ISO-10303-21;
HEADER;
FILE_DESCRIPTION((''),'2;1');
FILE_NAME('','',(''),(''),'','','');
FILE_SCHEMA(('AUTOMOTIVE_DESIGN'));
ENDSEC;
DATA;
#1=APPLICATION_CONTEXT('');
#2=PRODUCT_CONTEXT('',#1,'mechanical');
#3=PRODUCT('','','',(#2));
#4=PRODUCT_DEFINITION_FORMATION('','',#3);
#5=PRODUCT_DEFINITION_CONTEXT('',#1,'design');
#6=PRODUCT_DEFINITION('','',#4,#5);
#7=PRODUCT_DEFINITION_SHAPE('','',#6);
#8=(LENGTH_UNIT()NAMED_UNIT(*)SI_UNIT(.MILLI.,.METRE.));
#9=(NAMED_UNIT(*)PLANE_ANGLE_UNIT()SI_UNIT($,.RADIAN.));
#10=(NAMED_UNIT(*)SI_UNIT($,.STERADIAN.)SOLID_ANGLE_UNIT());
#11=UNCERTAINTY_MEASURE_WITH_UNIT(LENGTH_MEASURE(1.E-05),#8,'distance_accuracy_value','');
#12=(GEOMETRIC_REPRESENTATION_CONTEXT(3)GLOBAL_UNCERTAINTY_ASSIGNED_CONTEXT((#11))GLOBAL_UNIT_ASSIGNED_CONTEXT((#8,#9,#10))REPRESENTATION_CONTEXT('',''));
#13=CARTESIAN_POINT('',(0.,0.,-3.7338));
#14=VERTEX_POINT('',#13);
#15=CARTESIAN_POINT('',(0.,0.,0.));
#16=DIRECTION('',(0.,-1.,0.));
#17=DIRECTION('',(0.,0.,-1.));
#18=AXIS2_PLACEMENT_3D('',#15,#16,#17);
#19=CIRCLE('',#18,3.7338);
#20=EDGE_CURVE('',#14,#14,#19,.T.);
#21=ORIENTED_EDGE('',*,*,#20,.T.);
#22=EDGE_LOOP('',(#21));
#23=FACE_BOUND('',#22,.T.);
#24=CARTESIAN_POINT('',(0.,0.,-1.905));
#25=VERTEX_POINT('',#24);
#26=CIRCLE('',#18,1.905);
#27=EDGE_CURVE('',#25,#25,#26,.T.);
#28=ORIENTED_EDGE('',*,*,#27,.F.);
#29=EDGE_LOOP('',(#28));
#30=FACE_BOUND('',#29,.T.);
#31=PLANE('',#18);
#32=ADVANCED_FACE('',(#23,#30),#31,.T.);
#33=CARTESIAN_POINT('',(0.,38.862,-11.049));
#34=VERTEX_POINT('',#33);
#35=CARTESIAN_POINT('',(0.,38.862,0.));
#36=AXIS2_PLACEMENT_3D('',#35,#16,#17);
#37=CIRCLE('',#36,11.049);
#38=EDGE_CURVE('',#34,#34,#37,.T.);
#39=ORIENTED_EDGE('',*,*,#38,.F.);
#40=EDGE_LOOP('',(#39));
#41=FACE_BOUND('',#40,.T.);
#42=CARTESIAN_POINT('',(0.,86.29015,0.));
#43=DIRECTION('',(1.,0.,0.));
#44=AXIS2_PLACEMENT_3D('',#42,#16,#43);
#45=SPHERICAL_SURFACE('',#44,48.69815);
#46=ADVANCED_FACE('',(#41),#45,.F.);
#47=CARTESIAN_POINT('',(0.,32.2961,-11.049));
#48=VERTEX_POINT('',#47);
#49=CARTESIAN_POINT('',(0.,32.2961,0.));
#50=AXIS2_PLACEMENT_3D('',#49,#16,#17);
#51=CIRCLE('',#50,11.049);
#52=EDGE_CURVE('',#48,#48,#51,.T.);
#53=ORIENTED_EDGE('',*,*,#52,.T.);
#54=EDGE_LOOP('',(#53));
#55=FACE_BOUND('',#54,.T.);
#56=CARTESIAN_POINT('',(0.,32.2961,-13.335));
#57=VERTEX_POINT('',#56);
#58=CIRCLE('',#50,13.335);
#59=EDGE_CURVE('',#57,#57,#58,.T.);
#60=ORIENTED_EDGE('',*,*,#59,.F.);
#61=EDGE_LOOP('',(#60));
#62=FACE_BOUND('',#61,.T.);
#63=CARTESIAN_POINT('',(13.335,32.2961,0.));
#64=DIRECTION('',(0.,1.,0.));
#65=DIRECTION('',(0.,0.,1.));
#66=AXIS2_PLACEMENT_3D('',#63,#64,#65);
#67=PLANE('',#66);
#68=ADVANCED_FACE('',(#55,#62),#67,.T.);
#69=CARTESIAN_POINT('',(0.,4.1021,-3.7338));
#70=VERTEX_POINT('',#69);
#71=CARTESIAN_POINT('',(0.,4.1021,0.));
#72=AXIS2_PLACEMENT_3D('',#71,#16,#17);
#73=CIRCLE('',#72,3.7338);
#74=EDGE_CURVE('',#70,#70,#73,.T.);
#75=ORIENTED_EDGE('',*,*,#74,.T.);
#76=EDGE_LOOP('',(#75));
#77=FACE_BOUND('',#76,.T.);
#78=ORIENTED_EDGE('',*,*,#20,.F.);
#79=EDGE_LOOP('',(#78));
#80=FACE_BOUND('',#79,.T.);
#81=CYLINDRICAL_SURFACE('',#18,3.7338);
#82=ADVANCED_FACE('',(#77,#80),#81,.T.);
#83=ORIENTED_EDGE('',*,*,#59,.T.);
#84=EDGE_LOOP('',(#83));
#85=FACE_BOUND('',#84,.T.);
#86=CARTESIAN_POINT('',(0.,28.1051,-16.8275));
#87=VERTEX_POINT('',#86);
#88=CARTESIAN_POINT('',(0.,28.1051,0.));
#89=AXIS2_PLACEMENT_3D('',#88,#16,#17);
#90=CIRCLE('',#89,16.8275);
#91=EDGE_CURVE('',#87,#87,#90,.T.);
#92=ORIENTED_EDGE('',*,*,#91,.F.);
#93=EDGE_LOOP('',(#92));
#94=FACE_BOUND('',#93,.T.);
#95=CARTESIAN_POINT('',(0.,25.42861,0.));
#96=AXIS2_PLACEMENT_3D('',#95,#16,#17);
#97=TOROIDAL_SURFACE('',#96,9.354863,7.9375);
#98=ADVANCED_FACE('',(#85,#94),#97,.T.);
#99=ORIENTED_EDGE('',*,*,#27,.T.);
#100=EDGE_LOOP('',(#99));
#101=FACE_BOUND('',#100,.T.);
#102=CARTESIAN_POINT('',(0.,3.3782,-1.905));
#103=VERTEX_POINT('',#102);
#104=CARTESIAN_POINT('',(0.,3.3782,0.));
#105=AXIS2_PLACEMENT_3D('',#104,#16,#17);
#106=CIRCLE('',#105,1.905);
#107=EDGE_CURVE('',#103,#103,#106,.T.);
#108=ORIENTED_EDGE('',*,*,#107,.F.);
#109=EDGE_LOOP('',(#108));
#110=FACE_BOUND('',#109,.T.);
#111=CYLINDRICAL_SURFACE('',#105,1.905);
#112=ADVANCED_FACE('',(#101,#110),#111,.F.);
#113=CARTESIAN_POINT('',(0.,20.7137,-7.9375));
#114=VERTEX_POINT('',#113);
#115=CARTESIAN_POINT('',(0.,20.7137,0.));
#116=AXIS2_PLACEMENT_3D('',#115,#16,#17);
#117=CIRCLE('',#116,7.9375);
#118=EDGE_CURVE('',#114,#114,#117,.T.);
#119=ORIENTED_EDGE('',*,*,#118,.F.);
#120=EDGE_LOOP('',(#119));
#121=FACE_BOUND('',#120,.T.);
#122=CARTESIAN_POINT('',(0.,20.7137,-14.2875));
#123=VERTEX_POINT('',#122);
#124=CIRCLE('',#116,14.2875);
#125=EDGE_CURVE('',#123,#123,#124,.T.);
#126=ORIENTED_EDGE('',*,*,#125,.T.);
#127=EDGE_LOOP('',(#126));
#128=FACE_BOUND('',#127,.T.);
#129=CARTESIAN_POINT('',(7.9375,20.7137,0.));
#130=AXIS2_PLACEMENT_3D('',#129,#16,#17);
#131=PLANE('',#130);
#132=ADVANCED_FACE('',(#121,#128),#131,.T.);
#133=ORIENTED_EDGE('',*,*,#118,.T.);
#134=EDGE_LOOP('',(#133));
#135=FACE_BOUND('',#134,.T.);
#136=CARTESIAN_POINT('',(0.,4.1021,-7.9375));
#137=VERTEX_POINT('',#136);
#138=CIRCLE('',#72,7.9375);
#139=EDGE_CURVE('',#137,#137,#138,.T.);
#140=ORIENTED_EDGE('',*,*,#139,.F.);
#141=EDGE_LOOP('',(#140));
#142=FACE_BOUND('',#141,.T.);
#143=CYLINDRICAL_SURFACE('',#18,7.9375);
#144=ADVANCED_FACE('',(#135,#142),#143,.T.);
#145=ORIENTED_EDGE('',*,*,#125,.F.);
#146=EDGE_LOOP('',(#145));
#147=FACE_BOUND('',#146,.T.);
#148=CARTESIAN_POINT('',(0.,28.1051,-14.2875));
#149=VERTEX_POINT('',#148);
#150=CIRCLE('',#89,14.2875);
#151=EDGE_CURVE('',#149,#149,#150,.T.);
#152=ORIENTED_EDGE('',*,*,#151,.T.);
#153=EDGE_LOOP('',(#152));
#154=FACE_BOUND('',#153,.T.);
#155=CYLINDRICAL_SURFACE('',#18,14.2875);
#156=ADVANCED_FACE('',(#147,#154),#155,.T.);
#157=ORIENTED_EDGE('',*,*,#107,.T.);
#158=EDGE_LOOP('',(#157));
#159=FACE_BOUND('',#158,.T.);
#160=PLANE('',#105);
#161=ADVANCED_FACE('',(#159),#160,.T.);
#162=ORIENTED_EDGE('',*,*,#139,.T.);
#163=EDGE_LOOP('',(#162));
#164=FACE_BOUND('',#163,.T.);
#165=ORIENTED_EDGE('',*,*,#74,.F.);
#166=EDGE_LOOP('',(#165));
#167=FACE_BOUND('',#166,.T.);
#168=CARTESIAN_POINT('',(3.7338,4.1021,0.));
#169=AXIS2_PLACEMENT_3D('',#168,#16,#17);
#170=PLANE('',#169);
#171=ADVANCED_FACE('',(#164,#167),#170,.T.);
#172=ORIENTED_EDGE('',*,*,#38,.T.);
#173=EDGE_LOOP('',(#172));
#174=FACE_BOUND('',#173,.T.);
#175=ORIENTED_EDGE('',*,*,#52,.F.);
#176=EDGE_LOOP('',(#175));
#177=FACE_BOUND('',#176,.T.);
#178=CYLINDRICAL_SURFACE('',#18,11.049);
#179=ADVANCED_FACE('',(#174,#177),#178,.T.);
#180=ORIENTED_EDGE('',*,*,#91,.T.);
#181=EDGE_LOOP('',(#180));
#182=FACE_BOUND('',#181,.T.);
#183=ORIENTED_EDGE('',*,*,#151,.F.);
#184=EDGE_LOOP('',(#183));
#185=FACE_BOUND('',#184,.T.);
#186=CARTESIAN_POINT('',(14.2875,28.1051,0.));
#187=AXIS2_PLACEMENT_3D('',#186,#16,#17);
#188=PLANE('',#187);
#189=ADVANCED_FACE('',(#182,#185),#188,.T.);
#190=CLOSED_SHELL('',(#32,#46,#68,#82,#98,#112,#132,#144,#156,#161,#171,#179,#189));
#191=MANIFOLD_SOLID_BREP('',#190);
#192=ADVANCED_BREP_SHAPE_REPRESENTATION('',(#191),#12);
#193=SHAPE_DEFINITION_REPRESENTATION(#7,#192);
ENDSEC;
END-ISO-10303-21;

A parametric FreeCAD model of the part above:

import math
import FreeCAD as App
import Part
import Sketcher

V = App.Vector
Q = App.Units.Quantity

doc = App.newDocument("Part")
body = doc.addObject("PartDesign::Body", "Body")

# Sketch on XY plane
sketch1 = body.newObject("Sketcher::SketchObject", "Sketch")
sketch1.AttachmentSupport = (doc.getObject("XY_Plane"), [""])
sketch1.MapMode = "FlatFace"
sketch1.addGeometry([
    Part.LineSegment(V(0, 37.6, 0), V(0, 0, 0)),  # 0
    Part.LineSegment(V(0, 0, 0), V(3.7, 0, 0)),  # 1
    Part.LineSegment(V(3.7, 0, 0), V(3.7, 4.1, 0)),  # 2
    Part.LineSegment(V(3.7, 4.1, 0), V(7.9, 4.1, 0)),  # 3
    Part.LineSegment(V(7.9, 4.1, 0), V(7.9, 20.7, 0)),  # 4
    Part.LineSegment(V(7.9, 20.7, 0), V(14.3, 20.7, 0)),  # 5
    Part.LineSegment(V(14.3, 20.7, 0), V(14.3, 28.1, 0)),  # 6
    Part.LineSegment(V(14.3, 28.1, 0), V(16.8, 28.1, 0)),  # 7
    Part.ArcOfCircle(Part.Circle(V(9.4, 25.4, 0), V(0, 0, 1), 7.9), math.radians(20), math.radians(60)),  # 8
    Part.LineSegment(V(13.3, 32.3, 0), V(11, 32.3, 0)),  # 9
    Part.LineSegment(V(11, 32.3, 0), V(11, 38.9, 0)),  # 10
    Part.ArcOfCircle(Part.Circle(V(0, 86.3, 0), V(0, 0, 1), 48.7), math.radians(-90), math.radians(-76.89)),  # 11
], False)
sketch1.addConstraint([
    Sketcher.Constraint("Coincident", 0, 2, 1, 1),
    Sketcher.Constraint("Coincident", 1, 2, 2, 1),
    Sketcher.Constraint("Coincident", 2, 2, 3, 1),
    Sketcher.Constraint("Coincident", 3, 2, 4, 1),
    Sketcher.Constraint("Coincident", 4, 2, 5, 1),
    Sketcher.Constraint("Coincident", 5, 2, 6, 1),
    Sketcher.Constraint("Coincident", 6, 2, 7, 1),
    Sketcher.Constraint("Coincident", 7, 2, 8, 1),
    Sketcher.Constraint("Coincident", 8, 2, 9, 1),
    Sketcher.Constraint("Coincident", 9, 2, 10, 1),
    Sketcher.Constraint("Coincident", 10, 2, 11, 2),
    Sketcher.Constraint("Coincident", 11, 1, 0, 1),
    Sketcher.Constraint("Vertical", 0),
    Sketcher.Constraint("Horizontal", 1),
    Sketcher.Constraint("Vertical", 2),
    Sketcher.Constraint("Horizontal", 3),
    Sketcher.Constraint("Vertical", 4),
    Sketcher.Constraint("Horizontal", 5),
    Sketcher.Constraint("Vertical", 6),
    Sketcher.Constraint("Horizontal", 7),
    Sketcher.Constraint("Horizontal", 9),
    Sketcher.Constraint("Vertical", 10),
    Sketcher.Constraint("Coincident", 0, 2, -1, 1),
    Sketcher.Constraint("PointOnObject", 11, 3, -2),
    Sketcher.Constraint("DistanceX", 7, 1, 7, 2, Q("0.1 in")),
    Sketcher.Constraint("Radius", 8, Q("0.3125 in")),
    Sketcher.Constraint("DistanceX", 5, 1, 5, 2, Q("0.25 in")),
    Sketcher.Constraint("DistanceX", 9, 2, 9, 1, Q("0.09 in")),
    Sketcher.Constraint("DistanceY", 0, 2, 0, 1, Q("1.48 in")),
    Sketcher.Constraint("DistanceX", 1, 1, 1, 2, Q("0.147 in")),
    Sketcher.Constraint("DistanceY", 4, 1, 4, 2, Q("0.654 in")),
    Sketcher.Constraint("DistanceY", 6, 1, 6, 2, Q("0.291 in")),
    Sketcher.Constraint("DistanceY", -1, 1, 10, 2, Q("1.53 in")),
    Sketcher.Constraint("DistanceX", 3, 1, 3, 2, Q("0.1655 in")),
    Sketcher.Constraint("DistanceY", 2, 1, 2, 2, Q("0.1615 in")),
    Sketcher.Constraint("DistanceY", 10, 1, 10, 2, Q("0.2585 in")),
    Sketcher.Constraint("DistanceX", -1, 1, 8, 2, Q("0.525 in")),
])
revolution = body.newObject("PartDesign::Revolution", "Revolution")
revolution.Profile = sketch1
revolution.ReferenceAxis = (sketch1, ["V_Axis"])
revolution.Angle = 360

# Sketch on XZ plane
sketch2 = body.newObject("Sketcher::SketchObject", "Sketch001")
sketch2.AttachmentSupport = (doc.getObject("XZ_Plane"), [""])
sketch2.MapMode = "FlatFace"
sketch2.addGeometry(Part.Circle(V(0, 0, 0), V(0, 0, 1), 1.9), False)
sketch2.addConstraint([
    Sketcher.Constraint("Coincident", 0, 3, -1, 1),
    Sketcher.Constraint("Diameter", 0, Q("0.15 in")),
])
pocket1 = body.newObject("PartDesign::Pocket", "Pocket")
pocket1.Profile = sketch2
pocket1.Length = Q("0.133 in")

doc.recompute()
